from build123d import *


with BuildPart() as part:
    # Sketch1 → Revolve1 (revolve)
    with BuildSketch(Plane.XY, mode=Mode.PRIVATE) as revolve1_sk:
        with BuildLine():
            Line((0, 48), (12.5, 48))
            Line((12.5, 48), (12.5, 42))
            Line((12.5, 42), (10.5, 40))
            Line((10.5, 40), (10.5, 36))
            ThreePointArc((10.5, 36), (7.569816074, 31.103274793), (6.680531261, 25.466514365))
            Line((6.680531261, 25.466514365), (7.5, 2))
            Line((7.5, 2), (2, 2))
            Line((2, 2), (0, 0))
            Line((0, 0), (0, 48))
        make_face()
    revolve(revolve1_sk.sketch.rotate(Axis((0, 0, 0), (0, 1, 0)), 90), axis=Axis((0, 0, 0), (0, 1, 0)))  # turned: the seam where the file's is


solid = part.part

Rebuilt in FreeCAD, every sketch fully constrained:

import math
import FreeCAD as App
import Part
import Sketcher
Q = App.Units.Quantity

doc = App.newDocument("Part")
body = doc.addObject("PartDesign::Body", "Body")

sketch1 = body.newObject("Sketcher::SketchObject", "Sketch")
sketch1.AttachmentSupport = (doc.getObject("XY_Plane"), [""])
sketch1.MapMode = "FlatFace"
sketch1.addGeometry([
    Part.LineSegment(App.Vector(12.5, 48, 0), App.Vector(0, 48, 0)),
    Part.LineSegment(App.Vector(0, 48, 0), App.Vector(0, 0, 0)),
    Part.LineSegment(App.Vector(0, 0, 0), App.Vector(2, 2, 0)),
    Part.LineSegment(App.Vector(2, 2, 0), App.Vector(7.5, 2, 0)),
    Part.LineSegment(App.Vector(7.5, 2, 0), App.Vector(6.7, 25.5, 0)),
    Part.ArcOfCircle(Part.Circle(App.Vector(21.7, 26, 0), App.Vector(0, 0, 1), 15), math.radians(138), math.radians(182)),
    Part.LineSegment(App.Vector(10.5, 36, 0), App.Vector(10.5, 40, 0)),
    Part.LineSegment(App.Vector(10.5, 40, 0), App.Vector(12.5, 42, 0)),
    Part.LineSegment(App.Vector(12.5, 42, 0), App.Vector(12.5, 48, 0)),
], False)
sketch1.addConstraint([
    Sketcher.Constraint("Coincident", 0, 2, 1, 1),
    Sketcher.Constraint("Coincident", 1, 2, 2, 1),
    Sketcher.Constraint("Coincident", 2, 2, 3, 1),
    Sketcher.Constraint("Coincident", 3, 2, 4, 1),
    Sketcher.Constraint("Tangent", 4, 2, 5, 2),
    Sketcher.Constraint("Coincident", 5, 1, 6, 1),
    Sketcher.Constraint("Coincident", 6, 2, 7, 1),
    Sketcher.Constraint("Coincident", 7, 2, 8, 1),
    Sketcher.Constraint("Coincident", 8, 2, 0, 1),
    Sketcher.Constraint("Horizontal", 0),
    Sketcher.Constraint("Vertical", 1),
    Sketcher.Constraint("Horizontal", 3),
    Sketcher.Constraint("Vertical", 6),
    Sketcher.Constraint("Vertical", 8),
    Sketcher.Constraint("Coincident", 1, 2, -1, 1),
    Sketcher.Constraint("Parallel", 2, 7),
    Sketcher.Constraint("Equal", 2, 7),
    Sketcher.Constraint("Radius", 5, 15.0),
    Sketcher.Constraint("DistanceY", 1, 2, 1, 1, 48.0),
    Sketcher.Constraint("DistanceY", 6, 1, 6, 2, 4.0),
    Sketcher.Constraint("DistanceY", 8, 1, 8, 2, 6.0),
    Sketcher.Constraint("Angle", 2, Q("45 deg")),
    Sketcher.Constraint("Angle", 4, Q("92 deg")),
    Sketcher.Constraint("DistanceX", 0, 2, 0, 1, 12.5),
    Sketcher.Constraint("DistanceX", 3, 1, 3, 2, 5.5),
    Sketcher.Constraint("DistanceX", -1, 1, 2, 2, 2.0),
])
revolution = body.newObject("PartDesign::Revolution", "Revolution")
revolution.Profile = sketch1
revolution.ReferenceAxis = (sketch1, ["V_Axis"])
revolution.Angle = 360

doc.recompute()
